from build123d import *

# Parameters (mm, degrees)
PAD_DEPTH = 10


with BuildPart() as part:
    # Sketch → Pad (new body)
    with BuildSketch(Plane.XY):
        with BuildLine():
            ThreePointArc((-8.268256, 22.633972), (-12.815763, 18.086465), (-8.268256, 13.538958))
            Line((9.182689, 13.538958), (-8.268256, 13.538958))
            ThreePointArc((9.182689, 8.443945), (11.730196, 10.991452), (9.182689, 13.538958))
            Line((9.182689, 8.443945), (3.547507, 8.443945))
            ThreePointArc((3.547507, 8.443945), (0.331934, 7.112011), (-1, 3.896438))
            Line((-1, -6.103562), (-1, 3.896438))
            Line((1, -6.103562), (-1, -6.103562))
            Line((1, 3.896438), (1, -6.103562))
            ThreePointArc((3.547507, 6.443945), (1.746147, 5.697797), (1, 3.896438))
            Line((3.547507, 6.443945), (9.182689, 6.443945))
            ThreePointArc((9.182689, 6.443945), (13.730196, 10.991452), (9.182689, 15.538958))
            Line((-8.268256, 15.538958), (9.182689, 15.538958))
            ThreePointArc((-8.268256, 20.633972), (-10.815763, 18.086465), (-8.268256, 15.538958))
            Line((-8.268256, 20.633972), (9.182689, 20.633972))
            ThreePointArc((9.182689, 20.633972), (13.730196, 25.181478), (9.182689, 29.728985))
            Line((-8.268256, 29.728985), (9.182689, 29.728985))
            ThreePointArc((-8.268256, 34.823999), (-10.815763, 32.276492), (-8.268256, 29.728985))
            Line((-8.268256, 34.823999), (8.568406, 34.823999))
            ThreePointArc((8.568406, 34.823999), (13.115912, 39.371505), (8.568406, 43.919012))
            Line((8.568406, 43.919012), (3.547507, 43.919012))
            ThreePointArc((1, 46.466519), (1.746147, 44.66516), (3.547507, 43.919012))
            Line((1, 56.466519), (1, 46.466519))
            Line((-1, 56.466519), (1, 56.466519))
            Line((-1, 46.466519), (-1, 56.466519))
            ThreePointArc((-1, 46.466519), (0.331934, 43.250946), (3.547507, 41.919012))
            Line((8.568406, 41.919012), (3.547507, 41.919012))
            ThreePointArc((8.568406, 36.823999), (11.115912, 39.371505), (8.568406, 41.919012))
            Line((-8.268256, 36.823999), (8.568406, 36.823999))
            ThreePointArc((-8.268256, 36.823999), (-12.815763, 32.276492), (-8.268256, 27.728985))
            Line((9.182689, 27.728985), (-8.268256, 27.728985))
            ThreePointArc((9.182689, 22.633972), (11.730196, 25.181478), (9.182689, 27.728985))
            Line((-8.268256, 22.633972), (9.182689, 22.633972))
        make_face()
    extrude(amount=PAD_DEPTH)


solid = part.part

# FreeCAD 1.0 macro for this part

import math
import FreeCAD as App
import Part
import Sketcher
from FreeCAD import Vector

doc = App.newDocument("Part")
params = doc.addObject("Spreadsheet::Sheet", "Params")
for row, (alias, value) in enumerate([
    ("sketch1_width", "2 mm"),
    ("sketch1_height", "10 mm"),
    ("pad1_length", "10 mm"),
], start=1):
    params.set(f"A{row}", alias)
    params.set(f"B{row}", "=" + value)
    params.setAlias(f"B{row}", alias)

body = doc.addObject("PartDesign::Body", "Body")

sketch1 = doc.addObject("Sketcher::SketchObject", "Sketch")
body.addObject(sketch1)
sketch1.AttachmentSupport = (doc.XY_Plane, [""])
sketch1.MapMode = "FlatFace"
sketch1.addGeometry(Part.ArcOfCircle(Part.Circle(Vector(-8.3, 18.1, 0), Vector(0, 0, 1), 4.5), math.radians(90), math.radians(270)), False)
sketch1.addGeometry(Part.LineSegment(Vector(-8.3, 13.5, 0), Vector(9.2, 13.5, 0)), False)
sketch1.addGeometry(Part.ArcOfCircle(Part.Circle(Vector(9.2, 11, 0), Vector(0, 0, 1), 2.5), math.radians(-90), math.radians(90)), False)
sketch1.addGeometry(Part.LineSegment(Vector(9.2, 8.4, 0), Vector(3.5, 8.4, 0)), False)
sketch1.addGeometry(Part.ArcOfCircle(Part.Circle(Vector(3.5, 3.9, 0), Vector(0, 0, 1), 4.5), math.radians(90), math.radians(180)), False)
sketch1.addGeometry(Part.LineSegment(Vector(-1, 3.9, 0), Vector(-1, -6.1, 0)), False)
sketch1.addGeometry(Part.LineSegment(Vector(-1, -6.1, 0), Vector(1, -6.1, 0)), False)
sketch1.addGeometry(Part.LineSegment(Vector(1, -6.1, 0), Vector(1, 3.9, 0)), False)
sketch1.addGeometry(Part.ArcOfCircle(Part.Circle(Vector(3.5, 3.9, 0), Vector(0, 0, 1), 2.5), math.radians(90), math.radians(180)), False)
sketch1.addGeometry(Part.LineSegment(Vector(3.5, 6.4, 0), Vector(9.2, 6.4, 0)), False)
sketch1.addGeometry(Part.ArcOfCircle(Part.Circle(Vector(9.2, 11, 0), Vector(0, 0, 1), 4.5), math.radians(-90), math.radians(90)), False)
sketch1.addGeometry(Part.LineSegment(Vector(9.2, 15.5, 0), Vector(-8.3, 15.5, 0)), False)
sketch1.addGeometry(Part.ArcOfCircle(Part.Circle(Vector(-8.3, 18.1, 0), Vector(0, 0, 1), 2.5), math.radians(90), math.radians(270)), False)
sketch1.addGeometry(Part.LineSegment(Vector(-8.3, 20.6, 0), Vector(9.2, 20.6, 0)), False)
sketch1.addGeometry(Part.ArcOfCircle(Part.Circle(Vector(9.2, 25.2, 0), Vector(0, 0, 1), 4.5), math.radians(-90), math.radians(90)), False)
sketch1.addGeometry(Part.LineSegment(Vector(9.2, 29.7, 0), Vector(-8.3, 29.7, 0)), False)
sketch1.addGeometry(Part.ArcOfCircle(Part.Circle(Vector(-8.3, 32.3, 0), Vector(0, 0, 1), 2.5), math.radians(90), math.radians(270)), False)
sketch1.addGeometry(Part.LineSegment(Vector(-8.3, 34.8, 0), Vector(8.6, 34.8, 0)), False)
sketch1.addGeometry(Part.ArcOfCircle(Part.Circle(Vector(8.6, 39.4, 0), Vector(0, 0, 1), 4.5), math.radians(-90), math.radians(90)), False)
sketch1.addGeometry(Part.LineSegment(Vector(8.6, 43.9, 0), Vector(3.5, 43.9, 0)), False)
sketch1.addGeometry(Part.ArcOfCircle(Part.Circle(Vector(3.5, 46.5, 0), Vector(0, 0, 1), 2.5), math.radians(180), math.radians(270)), False)
sketch1.addGeometry(Part.LineSegment(Vector(1, 46.5, 0), Vector(1, 56.5, 0)), False)
sketch1.addGeometry(Part.LineSegment(Vector(1, 56.5, 0), Vector(-1, 56.5, 0)), False)
sketch1.addGeometry(Part.LineSegment(Vector(-1, 56.5, 0), Vector(-1, 46.5, 0)), False)
sketch1.addGeometry(Part.ArcOfCircle(Part.Circle(Vector(3.5, 46.5, 0), Vector(0, 0, 1), 4.5), math.radians(-180), math.radians(-90)), False)
sketch1.addGeometry(Part.LineSegment(Vector(3.5, 41.9, 0), Vector(8.6, 41.9, 0)), False)
sketch1.addGeometry(Part.ArcOfCircle(Part.Circle(Vector(8.6, 39.4, 0), Vector(0, 0, 1), 2.5), math.radians(-90), math.radians(90)), False)
sketch1.addGeometry(Part.LineSegment(Vector(8.6, 36.8, 0), Vector(-8.3, 36.8, 0)), False)
sketch1.addGeometry(Part.ArcOfCircle(Part.Circle(Vector(-8.3, 32.3, 0), Vector(0, 0, 1), 4.5), math.radians(90), math.radians(270)), False)
sketch1.addGeometry(Part.LineSegment(Vector(-8.3, 27.7, 0), Vector(9.2, 27.7, 0)), False)
sketch1.addGeometry(Part.ArcOfCircle(Part.Circle(Vector(9.2, 25.2, 0), Vector(0, 0, 1), 2.5), math.radians(-90), math.radians(90)), False)
sketch1.addGeometry(Part.LineSegment(Vector(9.2, 22.6, 0), Vector(-8.3, 22.6, 0)), False)
sketch1.addConstraint(Sketcher.Constraint("Tangent", 0, 2, 1, 1))
sketch1.addConstraint(Sketcher.Constraint("Tangent", 1, 2, 2, 2))
sketch1.addConstraint(Sketcher.Constraint("Tangent", 2, 1, 3, 1))
sketch1.addConstraint(Sketcher.Constraint("Tangent", 3, 2, 4, 1))
sketch1.addConstraint(Sketcher.Constraint("Tangent", 4, 2, 5, 1))
sketch1.addConstraint(Sketcher.Constraint("Coincident", 5, 2, 6, 1))
sketch1.addConstraint(Sketcher.Constraint("Coincident", 6, 2, 7, 1))
sketch1.addConstraint(Sketcher.Constraint("Tangent", 7, 2, 8, 2))
sketch1.addConstraint(Sketcher.Constraint("Tangent", 8, 1, 9, 1))
sketch1.addConstraint(Sketcher.Constraint("Tangent", 9, 2, 10, 1))
sketch1.addConstraint(Sketcher.Constraint("Tangent", 10, 2, 11, 1))
sketch1.addConstraint(Sketcher.Constraint("Tangent", 11, 2, 12, 2))
sketch1.addConstraint(Sketcher.Constraint("Tangent", 12, 1, 13, 1))
sketch1.addConstraint(Sketcher.Constraint("Tangent", 13, 2, 14, 1))
sketch1.addConstraint(Sketcher.Constraint("Tangent", 14, 2, 15, 1))
sketch1.addConstraint(Sketcher.Constraint("Tangent", 15, 2, 16, 2))
sketch1.addConstraint(Sketcher.Constraint("Tangent", 16, 1, 17, 1))
sketch1.addConstraint(Sketcher.Constraint("Tangent", 17, 2, 18, 1))
sketch1.addConstraint(Sketcher.Constraint("Tangent", 18, 2, 19, 1))
sketch1.addConstraint(Sketcher.Constraint("Tangent", 19, 2, 20, 2))
sketch1.addConstraint(Sketcher.Constraint("Tangent", 20, 1, 21, 1))
sketch1.addConstraint(Sketcher.Constraint("Coincident", 21, 2, 22, 1))
sketch1.addConstraint(Sketcher.Constraint("Coincident", 22, 2, 23, 1))
sketch1.addConstraint(Sketcher.Constraint("Tangent", 23, 2, 24, 1))
sketch1.addConstraint(Sketcher.Constraint("Tangent", 24, 2, 25, 1))
sketch1.addConstraint(Sketcher.Constraint("Tangent", 25, 2, 26, 2))
sketch1.addConstraint(Sketcher.Constraint("Tangent", 26, 1, 27, 1))
sketch1.addConstraint(Sketcher.Constraint("Tangent", 27, 2, 28, 1))
sketch1.addConstraint(Sketcher.Constraint("Tangent", 28, 2, 29, 1))
sketch1.addConstraint(Sketcher.Constraint("Tangent", 29, 2, 30, 2))
sketch1.addConstraint(Sketcher.Constraint("Tangent", 30, 1, 31, 1))
sketch1.addConstraint(Sketcher.Constraint("Tangent", 31, 2, 0, 1))
sketch1.addConstraint(Sketcher.Constraint("Horizontal", 1))
sketch1.addConstraint(Sketcher.Constraint("Horizontal", 3))
sketch1.addConstraint(Sketcher.Constraint("Vertical", 5))
sketch1.addConstraint(Sketcher.Constraint("Horizontal", 6))
sketch1.addConstraint(Sketcher.Constraint("Vertical", 7))
sketch1.addConstraint(Sketcher.Constraint("Horizontal", 9))
sketch1.addConstraint(Sketcher.Constraint("Horizontal", 11))
sketch1.addConstraint(Sketcher.Constraint("Horizontal", 13))
sketch1.addConstraint(Sketcher.Constraint("Horizontal", 15))
sketch1.addConstraint(Sketcher.Constraint("Horizontal", 17))
sketch1.addConstraint(Sketcher.Constraint("Horizontal", 19))
sketch1.addConstraint(Sketcher.Constraint("Vertical", 21))
sketch1.addConstraint(Sketcher.Constraint("Horizontal", 22))
sketch1.addConstraint(Sketcher.Constraint("Vertical", 23))
sketch1.addConstraint(Sketcher.Constraint("Horizontal", 25))
sketch1.addConstraint(Sketcher.Constraint("Horizontal", 27))
sketch1.addConstraint(Sketcher.Constraint("Horizontal", 29))
sketch1.addConstraint(Sketcher.Constraint("Horizontal", 31))
sketch1.addConstraint(Sketcher.Constraint("Coincident", 8, 3, 4, 3))
sketch1.addConstraint(Sketcher.Constraint("Coincident", 10, 3, 2, 3))
sketch1.addConstraint(Sketcher.Constraint("Coincident", 12, 3, 0, 3))
sketch1.addConstraint(Sketcher.Constraint("Coincident", 24, 3, 20, 3))
sketch1.addConstraint(Sketcher.Constraint("Coincident", 26, 3, 18, 3))
sketch1.addConstraint(Sketcher.Constraint("Coincident", 28, 3, 16, 3))
sketch1.addConstraint(Sketcher.Constraint("Coincident", 30, 3, 14, 3))
sketch1.addConstraint(Sketcher.Constraint("Equal", 0, 4))
sketch1.addConstraint(Sketcher.Constraint("Equal", 2, 8))
sketch1.addConstraint(Sketcher.Constraint("Equal", 10, 14))
sketch1.addConstraint(Sketcher.Constraint("Equal", 12, 16))
sketch1.addConstraint(Sketcher.Constraint("Equal", 14, 18))
sketch1.addConstraint(Sketcher.Constraint("Equal", 16, 20))
sketch1.addConstraint(Sketcher.Constraint("Vertical", 10, 3, 14, 3))
sketch1.addConstraint(Sketcher.Constraint("Vertical", 12, 3, 16, 3))
sketch1.addConstraint(Sketcher.Constraint("Vertical", 8, 3, 20, 3))
sketch1.addConstraint(Sketcher.Constraint("Equal", 7, 21))
sketch1.addConstraint(Sketcher.Constraint("DistanceX", 6, 1, 6, 2, 2.0))
sketch1.addConstraint(Sketcher.Constraint("DistanceY", 5, 2, 5, 1, 10.0))
sketch1.addConstraint(Sketcher.Constraint("DistanceX", 4, 2, -1, 1, 1.0))
sketch1.addConstraint(Sketcher.Constraint("DistanceX", 19, 2, 19, 1, 5.020899))
sketch1.addConstraint(Sketcher.Constraint("DistanceY", -1, 1, 16, 1, 34.823999))
sketch1.addConstraint(Sketcher.Constraint("Radius", 0, 4.547507))
sketch1.addConstraint(Sketcher.Constraint("DistanceX", 17, 1, 17, 2, 16.836662))
sketch1.addConstraint(Sketcher.Constraint("DistanceX", 1, 1, 1, 2, 17.450945))
sketch1.setExpression("Constraints[67]", "Params.sketch1_width")
sketch1.setExpression("Constraints[68]", "Params.sketch1_height")
pad1 = doc.addObject("PartDesign::Pad", "Pad")
body.addObject(pad1)
pad1.Profile = sketch1
pad1.setExpression("Length", "Params.pad1_length")

doc.recompute()
